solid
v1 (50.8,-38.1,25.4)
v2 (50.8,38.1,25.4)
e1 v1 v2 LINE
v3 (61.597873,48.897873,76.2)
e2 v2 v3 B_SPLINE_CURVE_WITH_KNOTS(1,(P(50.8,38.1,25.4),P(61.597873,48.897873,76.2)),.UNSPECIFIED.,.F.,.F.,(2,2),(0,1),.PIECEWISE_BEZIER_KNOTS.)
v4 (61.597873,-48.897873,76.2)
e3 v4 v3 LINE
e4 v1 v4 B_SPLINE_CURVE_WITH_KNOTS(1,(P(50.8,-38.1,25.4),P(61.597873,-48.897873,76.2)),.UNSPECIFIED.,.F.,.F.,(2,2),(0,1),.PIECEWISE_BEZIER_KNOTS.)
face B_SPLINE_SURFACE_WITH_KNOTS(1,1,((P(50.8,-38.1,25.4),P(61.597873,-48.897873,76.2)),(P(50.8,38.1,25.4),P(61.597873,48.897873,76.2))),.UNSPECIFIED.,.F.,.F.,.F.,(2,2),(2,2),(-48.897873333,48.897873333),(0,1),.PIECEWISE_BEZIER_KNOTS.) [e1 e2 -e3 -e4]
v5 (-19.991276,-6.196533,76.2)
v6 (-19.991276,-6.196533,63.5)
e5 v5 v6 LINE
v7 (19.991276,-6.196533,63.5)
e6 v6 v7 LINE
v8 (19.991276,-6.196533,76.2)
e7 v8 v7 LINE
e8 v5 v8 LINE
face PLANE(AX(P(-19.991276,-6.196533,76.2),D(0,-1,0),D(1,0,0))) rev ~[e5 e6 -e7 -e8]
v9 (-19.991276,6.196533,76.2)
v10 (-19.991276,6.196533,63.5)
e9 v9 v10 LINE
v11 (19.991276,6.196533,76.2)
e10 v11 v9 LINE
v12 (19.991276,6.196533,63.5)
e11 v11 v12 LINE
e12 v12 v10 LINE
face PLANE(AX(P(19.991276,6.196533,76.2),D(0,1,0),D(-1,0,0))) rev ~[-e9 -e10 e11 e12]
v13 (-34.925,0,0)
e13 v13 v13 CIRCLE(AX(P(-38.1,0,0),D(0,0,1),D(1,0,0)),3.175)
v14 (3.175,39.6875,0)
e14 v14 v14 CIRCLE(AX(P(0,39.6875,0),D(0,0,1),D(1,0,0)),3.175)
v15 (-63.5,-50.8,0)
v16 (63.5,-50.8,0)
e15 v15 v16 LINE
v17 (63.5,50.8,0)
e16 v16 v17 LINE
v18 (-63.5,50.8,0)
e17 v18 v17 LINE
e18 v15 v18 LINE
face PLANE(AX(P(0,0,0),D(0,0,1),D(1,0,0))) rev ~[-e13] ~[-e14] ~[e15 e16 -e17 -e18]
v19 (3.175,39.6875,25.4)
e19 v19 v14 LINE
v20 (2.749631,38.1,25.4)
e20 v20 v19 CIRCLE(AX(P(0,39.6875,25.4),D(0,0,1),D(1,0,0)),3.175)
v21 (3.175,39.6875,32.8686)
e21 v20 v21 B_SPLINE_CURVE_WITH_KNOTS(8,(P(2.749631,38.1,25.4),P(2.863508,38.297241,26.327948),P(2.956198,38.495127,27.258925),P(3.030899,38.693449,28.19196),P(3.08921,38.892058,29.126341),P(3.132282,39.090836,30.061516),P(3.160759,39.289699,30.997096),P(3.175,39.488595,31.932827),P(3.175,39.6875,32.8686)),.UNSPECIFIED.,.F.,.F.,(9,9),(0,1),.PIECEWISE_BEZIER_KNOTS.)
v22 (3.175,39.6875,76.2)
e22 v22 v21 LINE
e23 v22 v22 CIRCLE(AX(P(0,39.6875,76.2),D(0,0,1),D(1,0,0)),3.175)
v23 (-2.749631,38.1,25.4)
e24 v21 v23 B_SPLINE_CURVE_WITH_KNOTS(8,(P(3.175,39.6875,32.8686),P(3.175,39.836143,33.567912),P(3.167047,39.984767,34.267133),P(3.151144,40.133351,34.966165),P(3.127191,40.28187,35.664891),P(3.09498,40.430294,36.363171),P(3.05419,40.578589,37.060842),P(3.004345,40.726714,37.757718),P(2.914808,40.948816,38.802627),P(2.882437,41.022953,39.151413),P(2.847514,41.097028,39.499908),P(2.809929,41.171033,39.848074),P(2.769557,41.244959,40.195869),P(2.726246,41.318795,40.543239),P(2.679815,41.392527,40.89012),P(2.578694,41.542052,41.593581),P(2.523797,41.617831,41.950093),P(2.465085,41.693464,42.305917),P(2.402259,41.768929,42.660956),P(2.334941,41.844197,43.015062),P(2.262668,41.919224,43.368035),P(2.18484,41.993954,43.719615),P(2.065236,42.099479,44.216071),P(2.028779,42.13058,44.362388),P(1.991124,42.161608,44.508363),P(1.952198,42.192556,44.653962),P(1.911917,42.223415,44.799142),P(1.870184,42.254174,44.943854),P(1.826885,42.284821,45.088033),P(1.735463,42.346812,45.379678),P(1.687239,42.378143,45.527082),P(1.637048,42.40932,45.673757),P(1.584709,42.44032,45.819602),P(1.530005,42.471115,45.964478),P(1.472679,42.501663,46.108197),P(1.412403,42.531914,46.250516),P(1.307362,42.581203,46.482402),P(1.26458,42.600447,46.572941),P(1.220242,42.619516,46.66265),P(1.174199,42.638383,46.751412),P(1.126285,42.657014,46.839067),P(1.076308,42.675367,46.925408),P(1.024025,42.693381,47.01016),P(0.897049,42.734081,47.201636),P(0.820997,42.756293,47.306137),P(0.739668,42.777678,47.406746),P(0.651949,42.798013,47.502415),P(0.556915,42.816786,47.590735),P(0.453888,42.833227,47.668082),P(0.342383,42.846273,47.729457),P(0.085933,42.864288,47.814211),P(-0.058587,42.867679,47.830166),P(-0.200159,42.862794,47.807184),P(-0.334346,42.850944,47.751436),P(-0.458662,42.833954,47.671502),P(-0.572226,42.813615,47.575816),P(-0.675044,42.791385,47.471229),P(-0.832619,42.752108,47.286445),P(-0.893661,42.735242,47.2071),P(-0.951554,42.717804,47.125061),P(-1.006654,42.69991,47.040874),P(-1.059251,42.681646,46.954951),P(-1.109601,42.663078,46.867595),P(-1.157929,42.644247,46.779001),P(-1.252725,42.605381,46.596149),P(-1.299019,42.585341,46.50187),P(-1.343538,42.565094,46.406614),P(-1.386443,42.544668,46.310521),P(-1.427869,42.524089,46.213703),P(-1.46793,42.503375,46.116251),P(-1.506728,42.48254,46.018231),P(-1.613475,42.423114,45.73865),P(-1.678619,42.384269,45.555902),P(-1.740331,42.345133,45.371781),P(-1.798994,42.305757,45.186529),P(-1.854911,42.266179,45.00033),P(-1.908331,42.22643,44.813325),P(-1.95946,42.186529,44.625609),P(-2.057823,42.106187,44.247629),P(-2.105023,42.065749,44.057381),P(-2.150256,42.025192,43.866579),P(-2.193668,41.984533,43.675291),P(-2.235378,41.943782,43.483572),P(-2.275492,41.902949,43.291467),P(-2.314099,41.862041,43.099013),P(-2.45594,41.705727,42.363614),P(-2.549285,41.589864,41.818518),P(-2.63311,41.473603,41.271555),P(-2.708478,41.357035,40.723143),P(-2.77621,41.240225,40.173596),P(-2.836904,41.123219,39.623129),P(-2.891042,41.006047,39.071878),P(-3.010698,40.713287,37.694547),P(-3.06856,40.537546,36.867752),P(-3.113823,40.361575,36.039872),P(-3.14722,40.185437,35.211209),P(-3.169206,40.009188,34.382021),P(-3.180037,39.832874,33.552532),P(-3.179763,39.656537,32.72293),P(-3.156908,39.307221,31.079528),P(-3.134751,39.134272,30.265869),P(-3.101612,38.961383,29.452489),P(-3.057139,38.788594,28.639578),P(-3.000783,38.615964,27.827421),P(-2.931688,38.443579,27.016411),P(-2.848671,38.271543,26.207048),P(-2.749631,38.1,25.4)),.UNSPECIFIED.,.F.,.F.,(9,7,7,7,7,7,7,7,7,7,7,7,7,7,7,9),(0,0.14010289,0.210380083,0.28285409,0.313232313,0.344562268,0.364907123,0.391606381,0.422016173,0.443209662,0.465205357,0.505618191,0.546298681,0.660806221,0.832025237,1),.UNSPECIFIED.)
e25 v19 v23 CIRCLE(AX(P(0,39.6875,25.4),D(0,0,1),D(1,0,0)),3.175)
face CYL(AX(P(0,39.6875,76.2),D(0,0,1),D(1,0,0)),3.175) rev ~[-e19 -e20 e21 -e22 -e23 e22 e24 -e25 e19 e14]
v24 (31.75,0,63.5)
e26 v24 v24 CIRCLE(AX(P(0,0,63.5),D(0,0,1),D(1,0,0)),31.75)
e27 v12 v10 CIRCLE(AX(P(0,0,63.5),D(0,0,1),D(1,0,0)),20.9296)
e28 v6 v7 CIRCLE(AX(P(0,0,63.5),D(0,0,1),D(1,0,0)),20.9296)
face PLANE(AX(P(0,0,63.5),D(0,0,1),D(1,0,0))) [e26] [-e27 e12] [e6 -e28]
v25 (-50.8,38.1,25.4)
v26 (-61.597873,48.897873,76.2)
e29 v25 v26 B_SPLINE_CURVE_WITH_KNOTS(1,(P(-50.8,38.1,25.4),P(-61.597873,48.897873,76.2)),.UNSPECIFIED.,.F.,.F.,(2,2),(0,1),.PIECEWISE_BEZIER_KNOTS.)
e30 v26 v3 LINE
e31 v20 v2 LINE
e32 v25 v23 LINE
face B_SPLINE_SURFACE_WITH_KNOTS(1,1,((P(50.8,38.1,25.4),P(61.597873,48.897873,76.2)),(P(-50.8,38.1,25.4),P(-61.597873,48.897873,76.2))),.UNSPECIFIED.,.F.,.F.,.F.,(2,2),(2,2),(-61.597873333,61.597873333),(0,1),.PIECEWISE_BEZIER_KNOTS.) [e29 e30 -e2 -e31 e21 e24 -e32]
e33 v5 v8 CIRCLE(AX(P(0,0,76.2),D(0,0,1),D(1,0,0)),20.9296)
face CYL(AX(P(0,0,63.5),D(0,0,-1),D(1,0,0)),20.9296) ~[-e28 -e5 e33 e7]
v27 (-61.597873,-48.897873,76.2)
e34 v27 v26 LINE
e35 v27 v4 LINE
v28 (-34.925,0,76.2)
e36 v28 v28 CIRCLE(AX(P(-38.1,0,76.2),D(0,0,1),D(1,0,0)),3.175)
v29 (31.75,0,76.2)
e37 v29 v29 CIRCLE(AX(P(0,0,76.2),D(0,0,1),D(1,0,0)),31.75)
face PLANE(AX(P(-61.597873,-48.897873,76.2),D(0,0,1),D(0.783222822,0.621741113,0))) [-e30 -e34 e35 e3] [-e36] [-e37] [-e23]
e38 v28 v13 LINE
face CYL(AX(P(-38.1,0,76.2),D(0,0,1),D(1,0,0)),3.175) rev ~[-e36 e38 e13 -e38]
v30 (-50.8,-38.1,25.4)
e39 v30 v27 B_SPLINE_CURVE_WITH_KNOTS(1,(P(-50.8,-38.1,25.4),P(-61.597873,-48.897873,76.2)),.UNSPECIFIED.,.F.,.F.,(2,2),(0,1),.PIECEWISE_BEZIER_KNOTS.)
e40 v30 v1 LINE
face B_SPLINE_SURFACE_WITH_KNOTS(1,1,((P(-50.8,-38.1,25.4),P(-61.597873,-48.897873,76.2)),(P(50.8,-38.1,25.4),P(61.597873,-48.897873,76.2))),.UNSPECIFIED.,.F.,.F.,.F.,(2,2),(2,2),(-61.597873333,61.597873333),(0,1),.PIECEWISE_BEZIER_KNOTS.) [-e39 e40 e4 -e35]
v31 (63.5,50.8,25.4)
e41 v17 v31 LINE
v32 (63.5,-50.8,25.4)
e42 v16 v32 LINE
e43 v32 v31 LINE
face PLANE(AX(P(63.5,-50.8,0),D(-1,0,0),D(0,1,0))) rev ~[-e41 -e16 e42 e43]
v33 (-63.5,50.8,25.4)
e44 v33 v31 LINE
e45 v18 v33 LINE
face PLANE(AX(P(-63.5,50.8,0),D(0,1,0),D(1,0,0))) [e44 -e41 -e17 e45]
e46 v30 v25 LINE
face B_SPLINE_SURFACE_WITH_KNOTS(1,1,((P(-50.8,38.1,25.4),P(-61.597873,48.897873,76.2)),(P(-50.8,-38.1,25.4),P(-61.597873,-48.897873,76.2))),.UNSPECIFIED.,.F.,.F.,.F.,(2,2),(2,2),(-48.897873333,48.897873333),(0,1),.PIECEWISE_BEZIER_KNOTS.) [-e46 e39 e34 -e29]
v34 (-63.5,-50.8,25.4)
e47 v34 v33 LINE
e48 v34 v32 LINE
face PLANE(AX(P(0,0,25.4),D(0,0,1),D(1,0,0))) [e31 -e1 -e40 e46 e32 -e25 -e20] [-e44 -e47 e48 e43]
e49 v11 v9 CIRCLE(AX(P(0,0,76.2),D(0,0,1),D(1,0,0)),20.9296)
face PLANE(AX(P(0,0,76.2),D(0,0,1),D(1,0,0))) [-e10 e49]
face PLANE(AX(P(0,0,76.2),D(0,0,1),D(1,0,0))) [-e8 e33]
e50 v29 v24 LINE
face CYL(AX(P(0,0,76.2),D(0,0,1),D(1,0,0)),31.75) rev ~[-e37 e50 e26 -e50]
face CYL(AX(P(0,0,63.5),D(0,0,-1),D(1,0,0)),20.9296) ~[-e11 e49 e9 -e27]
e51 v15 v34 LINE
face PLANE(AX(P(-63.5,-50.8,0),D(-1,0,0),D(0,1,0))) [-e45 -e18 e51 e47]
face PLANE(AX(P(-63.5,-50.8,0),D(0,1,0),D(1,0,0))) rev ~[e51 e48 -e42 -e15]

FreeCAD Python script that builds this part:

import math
import FreeCAD as App
import Part
import Sketcher
from FreeCAD import Vector
Q = App.Units.Quantity


def add_polygon(sketch, points):
    """Adds a closed chain of lines whose ends are joined by coincident constraints."""
    first, n = sketch.GeometryCount, len(points)
    for a, b in zip(points, points[1:] + points[:1]):
        sketch.addGeometry(Part.LineSegment(App.Vector(*a, 0), App.Vector(*b, 0)), False)
    for i in range(n):
        sketch.addConstraint(Sketcher.Constraint("Coincident", first + i, 2, first + (i + 1) % n, 1))

doc = App.newDocument("Part")
params = doc.addObject("Spreadsheet::Sheet", "Params")
for row, (alias, value) in enumerate([
    ("sketch1_width", "5 in"),
    ("sketch1_height", "4 in"),
    ("pad1_length", "1 in"),
    ("sketch2_width", "4 in"),
    ("sketch2_height", "3 in"),
    ("pad2_length", "2 in"),
    ("pad2_taper", "12 deg"),
    ("sketch3_diameter", "2.5 in"),
    ("pocket1_length", "0.5 in"),
    ("sketch4_diameter", "1.648 in"),
    ("pad3_length", "0.5 in"),
    ("sketch5_diameter", "0.25 in"),
    ("sketch6_radius", "0.824 in"),
    ("pocket3_length", "0.5 in"),
], start=1):
    params.set(f"A{row}", alias)
    params.set(f"B{row}", "=" + value)
    params.setAlias(f"B{row}", alias)

body = doc.addObject("PartDesign::Body", "Body")

# Sketch on XY plane
sketch1 = body.newObject("Sketcher::SketchObject", "Sketch")
sketch1.AttachmentSupport = (doc.getObject("XY_Plane"), [""])
sketch1.MapMode = "FlatFace"
add_polygon(sketch1, [(-64, 51), (-64, -51), (64, -51), (64, 51)])  # lines 0-3
sketch1.addConstraint(Sketcher.Constraint("Vertical", 0))
sketch1.addConstraint(Sketcher.Constraint("Horizontal", 1))
sketch1.addConstraint(Sketcher.Constraint("Vertical", 2))
sketch1.addConstraint(Sketcher.Constraint("Horizontal", 3))
sketch1.addConstraint(Sketcher.Constraint("Symmetric", 0, 2, 2, 2, -1, 1))
sketch1.addConstraint(Sketcher.Constraint("DistanceX", 1, 1, 1, 2, Q("5 in")))
sketch1.addConstraint(Sketcher.Constraint("DistanceY", 0, 2, 0, 1, Q("4 in")))
sketch1.setExpression("Constraints[9]", "Params.sketch1_width")
sketch1.setExpression("Constraints[10]", "Params.sketch1_height")
pad1 = body.newObject("PartDesign::Pad", "Pad")
pad1.Profile = sketch1
pad1.setExpression("Length", "Params.pad1_length")

# Sketch on XY plane
sketch2 = body.newObject("Sketcher::SketchObject", "Sketch001")
sketch2.AttachmentSupport = (doc.getObject("XY_Plane"), [""])
sketch2.MapMode = "FlatFace"
sketch2.AttachmentOffset = App.Placement(Vector(0, 0, 1 * 25.4), App.Rotation())
add_polygon(sketch2, [(-51, 38), (-51, -38), (51, -38), (51, 38)])  # lines 0-3
sketch2.addConstraint(Sketcher.Constraint("Vertical", 0))
sketch2.addConstraint(Sketcher.Constraint("Horizontal", 1))
sketch2.addConstraint(Sketcher.Constraint("Vertical", 2))
sketch2.addConstraint(Sketcher.Constraint("Horizontal", 3))
sketch2.addConstraint(Sketcher.Constraint("Symmetric", 0, 2, 2, 2, -1, 1))
sketch2.addConstraint(Sketcher.Constraint("DistanceX", 1, 1, 1, 2, Q("4 in")))
sketch2.addConstraint(Sketcher.Constraint("DistanceY", 0, 2, 0, 1, Q("3 in")))
sketch2.setExpression("Constraints[9]", "Params.sketch2_width")
sketch2.setExpression("Constraints[10]", "Params.sketch2_height")
pad2 = body.newObject("PartDesign::Pad", "Pad001")
pad2.Profile = sketch2
pad2.setExpression("Length", "Params.pad2_length")
pad2.setExpression("TaperAngle", "Params.pad2_taper")

# Sketch on XY plane
sketch3 = body.newObject("Sketcher::SketchObject", "Sketch002")
sketch3.AttachmentSupport = (doc.getObject("XY_Plane"), [""])
sketch3.MapMode = "FlatFace"
sketch3.AttachmentOffset = App.Placement(Vector(0, 0, 3 * 25.4), App.Rotation())
sketch3.addGeometry(Part.Circle(Vector(0, 0, 0), Vector(0, 0, 1), 32), False)
sketch3.addConstraint(Sketcher.Constraint("Coincident", 0, 3, -1, 1))
sketch3.addConstraint(Sketcher.Constraint("Diameter", 0, Q("2.5 in")))
sketch3.setExpression("Constraints[1]", "Params.sketch3_diameter")
pocket1 = body.newObject("PartDesign::Pocket", "Pocket")
pocket1.Profile = sketch3
pocket1.setExpression("Length", "Params.pocket1_length")

# Sketch on XY plane
sketch4 = body.newObject("Sketcher::SketchObject", "Sketch003")
sketch4.AttachmentSupport = (doc.getObject("XY_Plane"), [""])
sketch4.MapMode = "FlatFace"
sketch4.AttachmentOffset = App.Placement(Vector(0, 0, 2.5 * 25.4), App.Rotation())
sketch4.addGeometry(Part.Circle(Vector(0, 0, 0), Vector(0, 0, 1), 21), False)
sketch4.addConstraint(Sketcher.Constraint("Coincident", 0, 3, -1, 1))
sketch4.addConstraint(Sketcher.Constraint("Diameter", 0, Q("1.648 in")))
sketch4.setExpression("Constraints[1]", "Params.sketch4_diameter")
pad3 = body.newObject("PartDesign::Pad", "Pad002")
pad3.Profile = sketch4
pad3.setExpression("Length", "Params.pad3_length")

# Sketch on XY plane
sketch5 = body.newObject("Sketcher::SketchObject", "Sketch004")
sketch5.AttachmentSupport = (doc.getObject("XY_Plane"), [""])
sketch5.MapMode = "FlatFace"
sketch5.AttachmentOffset = App.Placement(Vector(0, 0, 3 * 25.4), App.Rotation())
sketch5.addGeometry(Part.Circle(Vector(-38.1, 0, 0), Vector(0, 0, 1), 3.2), False)
sketch5.addGeometry(Part.Circle(Vector(0, 39.7, 0), Vector(0, 0, 1), 3.2), False)
sketch5.addConstraint(Sketcher.Constraint("Equal", 0, 1))
sketch5.addConstraint(Sketcher.Constraint("PointOnObject", 0, 3, -1))
sketch5.addConstraint(Sketcher.Constraint("PointOnObject", 1, 3, -2))
sketch5.addConstraint(Sketcher.Constraint("Diameter", 0, Q("0.25 in")))
sketch5.addConstraint(Sketcher.Constraint("DistanceX", 0, 3, -1, 1, Q("1.5 in")))
sketch5.addConstraint(Sketcher.Constraint("DistanceY", -1, 1, 1, 3, Q("1.5625 in")))
sketch5.setExpression("Constraints[3]", "Params.sketch5_diameter")
pocket2 = body.newObject("PartDesign::Pocket", "Pocket001")
pocket2.Profile = sketch5
pocket2.Type = "ThroughAll"

# Sketch on XY plane
sketch6 = body.newObject("Sketcher::SketchObject", "Sketch005")
sketch6.AttachmentSupport = (doc.getObject("XY_Plane"), [""])
sketch6.MapMode = "FlatFace"
sketch6.AttachmentOffset = App.Placement(Vector(0, 0, 3 * 25.4), App.Rotation())
sketch6.addGeometry(Part.ArcOfCircle(Part.Circle(Vector(0, 0, 0), Vector(0, 0, 1), 21), math.radians(-17), math.radians(17)), False)
sketch6.addGeometry(Part.LineSegment(Vector(20, 6, 0), Vector(-20, 6, 0)), False)
sketch6.addGeometry(Part.ArcOfCircle(Part.Circle(Vector(0, 0, 0), Vector(0, 0, 1), 21), math.radians(163), math.radians(197)), False)
sketch6.addGeometry(Part.LineSegment(Vector(-20, -6, 0), Vector(20, -6, 0)), False)
sketch6.addConstraint(Sketcher.Constraint("Coincident", 0, 2, 1, 1))
sketch6.addConstraint(Sketcher.Constraint("Coincident", 1, 2, 2, 1))
sketch6.addConstraint(Sketcher.Constraint("Coincident", 2, 2, 3, 1))
sketch6.addConstraint(Sketcher.Constraint("Coincident", 3, 2, 0, 1))
sketch6.addConstraint(Sketcher.Constraint("Horizontal", 1))
sketch6.addConstraint(Sketcher.Constraint("Horizontal", 3))
sketch6.addConstraint(Sketcher.Constraint("Coincident", 0, 3, -1, 1))
sketch6.addConstraint(Sketcher.Constraint("Coincident", 2, 3, -1, 1))
sketch6.addConstraint(Sketcher.Constraint("Equal", 0, 2))
sketch6.addConstraint(Sketcher.Constraint("Vertical", 1, 2, 2, 2))
sketch6.addConstraint(Sketcher.Constraint("Radius", 0, Q("0.824 in")))
sketch6.addConstraint(Sketcher.Constraint("DistanceX", 1, 2, 1, 1, 39.982553))
sketch6.setExpression("Constraints[10]", "Params.sketch6_radius")
pocket3 = body.newObject("PartDesign::Pocket", "Pocket002")
pocket3.Profile = sketch6
pocket3.setExpression("Length", "Params.pocket3_length")

doc.recompute()
